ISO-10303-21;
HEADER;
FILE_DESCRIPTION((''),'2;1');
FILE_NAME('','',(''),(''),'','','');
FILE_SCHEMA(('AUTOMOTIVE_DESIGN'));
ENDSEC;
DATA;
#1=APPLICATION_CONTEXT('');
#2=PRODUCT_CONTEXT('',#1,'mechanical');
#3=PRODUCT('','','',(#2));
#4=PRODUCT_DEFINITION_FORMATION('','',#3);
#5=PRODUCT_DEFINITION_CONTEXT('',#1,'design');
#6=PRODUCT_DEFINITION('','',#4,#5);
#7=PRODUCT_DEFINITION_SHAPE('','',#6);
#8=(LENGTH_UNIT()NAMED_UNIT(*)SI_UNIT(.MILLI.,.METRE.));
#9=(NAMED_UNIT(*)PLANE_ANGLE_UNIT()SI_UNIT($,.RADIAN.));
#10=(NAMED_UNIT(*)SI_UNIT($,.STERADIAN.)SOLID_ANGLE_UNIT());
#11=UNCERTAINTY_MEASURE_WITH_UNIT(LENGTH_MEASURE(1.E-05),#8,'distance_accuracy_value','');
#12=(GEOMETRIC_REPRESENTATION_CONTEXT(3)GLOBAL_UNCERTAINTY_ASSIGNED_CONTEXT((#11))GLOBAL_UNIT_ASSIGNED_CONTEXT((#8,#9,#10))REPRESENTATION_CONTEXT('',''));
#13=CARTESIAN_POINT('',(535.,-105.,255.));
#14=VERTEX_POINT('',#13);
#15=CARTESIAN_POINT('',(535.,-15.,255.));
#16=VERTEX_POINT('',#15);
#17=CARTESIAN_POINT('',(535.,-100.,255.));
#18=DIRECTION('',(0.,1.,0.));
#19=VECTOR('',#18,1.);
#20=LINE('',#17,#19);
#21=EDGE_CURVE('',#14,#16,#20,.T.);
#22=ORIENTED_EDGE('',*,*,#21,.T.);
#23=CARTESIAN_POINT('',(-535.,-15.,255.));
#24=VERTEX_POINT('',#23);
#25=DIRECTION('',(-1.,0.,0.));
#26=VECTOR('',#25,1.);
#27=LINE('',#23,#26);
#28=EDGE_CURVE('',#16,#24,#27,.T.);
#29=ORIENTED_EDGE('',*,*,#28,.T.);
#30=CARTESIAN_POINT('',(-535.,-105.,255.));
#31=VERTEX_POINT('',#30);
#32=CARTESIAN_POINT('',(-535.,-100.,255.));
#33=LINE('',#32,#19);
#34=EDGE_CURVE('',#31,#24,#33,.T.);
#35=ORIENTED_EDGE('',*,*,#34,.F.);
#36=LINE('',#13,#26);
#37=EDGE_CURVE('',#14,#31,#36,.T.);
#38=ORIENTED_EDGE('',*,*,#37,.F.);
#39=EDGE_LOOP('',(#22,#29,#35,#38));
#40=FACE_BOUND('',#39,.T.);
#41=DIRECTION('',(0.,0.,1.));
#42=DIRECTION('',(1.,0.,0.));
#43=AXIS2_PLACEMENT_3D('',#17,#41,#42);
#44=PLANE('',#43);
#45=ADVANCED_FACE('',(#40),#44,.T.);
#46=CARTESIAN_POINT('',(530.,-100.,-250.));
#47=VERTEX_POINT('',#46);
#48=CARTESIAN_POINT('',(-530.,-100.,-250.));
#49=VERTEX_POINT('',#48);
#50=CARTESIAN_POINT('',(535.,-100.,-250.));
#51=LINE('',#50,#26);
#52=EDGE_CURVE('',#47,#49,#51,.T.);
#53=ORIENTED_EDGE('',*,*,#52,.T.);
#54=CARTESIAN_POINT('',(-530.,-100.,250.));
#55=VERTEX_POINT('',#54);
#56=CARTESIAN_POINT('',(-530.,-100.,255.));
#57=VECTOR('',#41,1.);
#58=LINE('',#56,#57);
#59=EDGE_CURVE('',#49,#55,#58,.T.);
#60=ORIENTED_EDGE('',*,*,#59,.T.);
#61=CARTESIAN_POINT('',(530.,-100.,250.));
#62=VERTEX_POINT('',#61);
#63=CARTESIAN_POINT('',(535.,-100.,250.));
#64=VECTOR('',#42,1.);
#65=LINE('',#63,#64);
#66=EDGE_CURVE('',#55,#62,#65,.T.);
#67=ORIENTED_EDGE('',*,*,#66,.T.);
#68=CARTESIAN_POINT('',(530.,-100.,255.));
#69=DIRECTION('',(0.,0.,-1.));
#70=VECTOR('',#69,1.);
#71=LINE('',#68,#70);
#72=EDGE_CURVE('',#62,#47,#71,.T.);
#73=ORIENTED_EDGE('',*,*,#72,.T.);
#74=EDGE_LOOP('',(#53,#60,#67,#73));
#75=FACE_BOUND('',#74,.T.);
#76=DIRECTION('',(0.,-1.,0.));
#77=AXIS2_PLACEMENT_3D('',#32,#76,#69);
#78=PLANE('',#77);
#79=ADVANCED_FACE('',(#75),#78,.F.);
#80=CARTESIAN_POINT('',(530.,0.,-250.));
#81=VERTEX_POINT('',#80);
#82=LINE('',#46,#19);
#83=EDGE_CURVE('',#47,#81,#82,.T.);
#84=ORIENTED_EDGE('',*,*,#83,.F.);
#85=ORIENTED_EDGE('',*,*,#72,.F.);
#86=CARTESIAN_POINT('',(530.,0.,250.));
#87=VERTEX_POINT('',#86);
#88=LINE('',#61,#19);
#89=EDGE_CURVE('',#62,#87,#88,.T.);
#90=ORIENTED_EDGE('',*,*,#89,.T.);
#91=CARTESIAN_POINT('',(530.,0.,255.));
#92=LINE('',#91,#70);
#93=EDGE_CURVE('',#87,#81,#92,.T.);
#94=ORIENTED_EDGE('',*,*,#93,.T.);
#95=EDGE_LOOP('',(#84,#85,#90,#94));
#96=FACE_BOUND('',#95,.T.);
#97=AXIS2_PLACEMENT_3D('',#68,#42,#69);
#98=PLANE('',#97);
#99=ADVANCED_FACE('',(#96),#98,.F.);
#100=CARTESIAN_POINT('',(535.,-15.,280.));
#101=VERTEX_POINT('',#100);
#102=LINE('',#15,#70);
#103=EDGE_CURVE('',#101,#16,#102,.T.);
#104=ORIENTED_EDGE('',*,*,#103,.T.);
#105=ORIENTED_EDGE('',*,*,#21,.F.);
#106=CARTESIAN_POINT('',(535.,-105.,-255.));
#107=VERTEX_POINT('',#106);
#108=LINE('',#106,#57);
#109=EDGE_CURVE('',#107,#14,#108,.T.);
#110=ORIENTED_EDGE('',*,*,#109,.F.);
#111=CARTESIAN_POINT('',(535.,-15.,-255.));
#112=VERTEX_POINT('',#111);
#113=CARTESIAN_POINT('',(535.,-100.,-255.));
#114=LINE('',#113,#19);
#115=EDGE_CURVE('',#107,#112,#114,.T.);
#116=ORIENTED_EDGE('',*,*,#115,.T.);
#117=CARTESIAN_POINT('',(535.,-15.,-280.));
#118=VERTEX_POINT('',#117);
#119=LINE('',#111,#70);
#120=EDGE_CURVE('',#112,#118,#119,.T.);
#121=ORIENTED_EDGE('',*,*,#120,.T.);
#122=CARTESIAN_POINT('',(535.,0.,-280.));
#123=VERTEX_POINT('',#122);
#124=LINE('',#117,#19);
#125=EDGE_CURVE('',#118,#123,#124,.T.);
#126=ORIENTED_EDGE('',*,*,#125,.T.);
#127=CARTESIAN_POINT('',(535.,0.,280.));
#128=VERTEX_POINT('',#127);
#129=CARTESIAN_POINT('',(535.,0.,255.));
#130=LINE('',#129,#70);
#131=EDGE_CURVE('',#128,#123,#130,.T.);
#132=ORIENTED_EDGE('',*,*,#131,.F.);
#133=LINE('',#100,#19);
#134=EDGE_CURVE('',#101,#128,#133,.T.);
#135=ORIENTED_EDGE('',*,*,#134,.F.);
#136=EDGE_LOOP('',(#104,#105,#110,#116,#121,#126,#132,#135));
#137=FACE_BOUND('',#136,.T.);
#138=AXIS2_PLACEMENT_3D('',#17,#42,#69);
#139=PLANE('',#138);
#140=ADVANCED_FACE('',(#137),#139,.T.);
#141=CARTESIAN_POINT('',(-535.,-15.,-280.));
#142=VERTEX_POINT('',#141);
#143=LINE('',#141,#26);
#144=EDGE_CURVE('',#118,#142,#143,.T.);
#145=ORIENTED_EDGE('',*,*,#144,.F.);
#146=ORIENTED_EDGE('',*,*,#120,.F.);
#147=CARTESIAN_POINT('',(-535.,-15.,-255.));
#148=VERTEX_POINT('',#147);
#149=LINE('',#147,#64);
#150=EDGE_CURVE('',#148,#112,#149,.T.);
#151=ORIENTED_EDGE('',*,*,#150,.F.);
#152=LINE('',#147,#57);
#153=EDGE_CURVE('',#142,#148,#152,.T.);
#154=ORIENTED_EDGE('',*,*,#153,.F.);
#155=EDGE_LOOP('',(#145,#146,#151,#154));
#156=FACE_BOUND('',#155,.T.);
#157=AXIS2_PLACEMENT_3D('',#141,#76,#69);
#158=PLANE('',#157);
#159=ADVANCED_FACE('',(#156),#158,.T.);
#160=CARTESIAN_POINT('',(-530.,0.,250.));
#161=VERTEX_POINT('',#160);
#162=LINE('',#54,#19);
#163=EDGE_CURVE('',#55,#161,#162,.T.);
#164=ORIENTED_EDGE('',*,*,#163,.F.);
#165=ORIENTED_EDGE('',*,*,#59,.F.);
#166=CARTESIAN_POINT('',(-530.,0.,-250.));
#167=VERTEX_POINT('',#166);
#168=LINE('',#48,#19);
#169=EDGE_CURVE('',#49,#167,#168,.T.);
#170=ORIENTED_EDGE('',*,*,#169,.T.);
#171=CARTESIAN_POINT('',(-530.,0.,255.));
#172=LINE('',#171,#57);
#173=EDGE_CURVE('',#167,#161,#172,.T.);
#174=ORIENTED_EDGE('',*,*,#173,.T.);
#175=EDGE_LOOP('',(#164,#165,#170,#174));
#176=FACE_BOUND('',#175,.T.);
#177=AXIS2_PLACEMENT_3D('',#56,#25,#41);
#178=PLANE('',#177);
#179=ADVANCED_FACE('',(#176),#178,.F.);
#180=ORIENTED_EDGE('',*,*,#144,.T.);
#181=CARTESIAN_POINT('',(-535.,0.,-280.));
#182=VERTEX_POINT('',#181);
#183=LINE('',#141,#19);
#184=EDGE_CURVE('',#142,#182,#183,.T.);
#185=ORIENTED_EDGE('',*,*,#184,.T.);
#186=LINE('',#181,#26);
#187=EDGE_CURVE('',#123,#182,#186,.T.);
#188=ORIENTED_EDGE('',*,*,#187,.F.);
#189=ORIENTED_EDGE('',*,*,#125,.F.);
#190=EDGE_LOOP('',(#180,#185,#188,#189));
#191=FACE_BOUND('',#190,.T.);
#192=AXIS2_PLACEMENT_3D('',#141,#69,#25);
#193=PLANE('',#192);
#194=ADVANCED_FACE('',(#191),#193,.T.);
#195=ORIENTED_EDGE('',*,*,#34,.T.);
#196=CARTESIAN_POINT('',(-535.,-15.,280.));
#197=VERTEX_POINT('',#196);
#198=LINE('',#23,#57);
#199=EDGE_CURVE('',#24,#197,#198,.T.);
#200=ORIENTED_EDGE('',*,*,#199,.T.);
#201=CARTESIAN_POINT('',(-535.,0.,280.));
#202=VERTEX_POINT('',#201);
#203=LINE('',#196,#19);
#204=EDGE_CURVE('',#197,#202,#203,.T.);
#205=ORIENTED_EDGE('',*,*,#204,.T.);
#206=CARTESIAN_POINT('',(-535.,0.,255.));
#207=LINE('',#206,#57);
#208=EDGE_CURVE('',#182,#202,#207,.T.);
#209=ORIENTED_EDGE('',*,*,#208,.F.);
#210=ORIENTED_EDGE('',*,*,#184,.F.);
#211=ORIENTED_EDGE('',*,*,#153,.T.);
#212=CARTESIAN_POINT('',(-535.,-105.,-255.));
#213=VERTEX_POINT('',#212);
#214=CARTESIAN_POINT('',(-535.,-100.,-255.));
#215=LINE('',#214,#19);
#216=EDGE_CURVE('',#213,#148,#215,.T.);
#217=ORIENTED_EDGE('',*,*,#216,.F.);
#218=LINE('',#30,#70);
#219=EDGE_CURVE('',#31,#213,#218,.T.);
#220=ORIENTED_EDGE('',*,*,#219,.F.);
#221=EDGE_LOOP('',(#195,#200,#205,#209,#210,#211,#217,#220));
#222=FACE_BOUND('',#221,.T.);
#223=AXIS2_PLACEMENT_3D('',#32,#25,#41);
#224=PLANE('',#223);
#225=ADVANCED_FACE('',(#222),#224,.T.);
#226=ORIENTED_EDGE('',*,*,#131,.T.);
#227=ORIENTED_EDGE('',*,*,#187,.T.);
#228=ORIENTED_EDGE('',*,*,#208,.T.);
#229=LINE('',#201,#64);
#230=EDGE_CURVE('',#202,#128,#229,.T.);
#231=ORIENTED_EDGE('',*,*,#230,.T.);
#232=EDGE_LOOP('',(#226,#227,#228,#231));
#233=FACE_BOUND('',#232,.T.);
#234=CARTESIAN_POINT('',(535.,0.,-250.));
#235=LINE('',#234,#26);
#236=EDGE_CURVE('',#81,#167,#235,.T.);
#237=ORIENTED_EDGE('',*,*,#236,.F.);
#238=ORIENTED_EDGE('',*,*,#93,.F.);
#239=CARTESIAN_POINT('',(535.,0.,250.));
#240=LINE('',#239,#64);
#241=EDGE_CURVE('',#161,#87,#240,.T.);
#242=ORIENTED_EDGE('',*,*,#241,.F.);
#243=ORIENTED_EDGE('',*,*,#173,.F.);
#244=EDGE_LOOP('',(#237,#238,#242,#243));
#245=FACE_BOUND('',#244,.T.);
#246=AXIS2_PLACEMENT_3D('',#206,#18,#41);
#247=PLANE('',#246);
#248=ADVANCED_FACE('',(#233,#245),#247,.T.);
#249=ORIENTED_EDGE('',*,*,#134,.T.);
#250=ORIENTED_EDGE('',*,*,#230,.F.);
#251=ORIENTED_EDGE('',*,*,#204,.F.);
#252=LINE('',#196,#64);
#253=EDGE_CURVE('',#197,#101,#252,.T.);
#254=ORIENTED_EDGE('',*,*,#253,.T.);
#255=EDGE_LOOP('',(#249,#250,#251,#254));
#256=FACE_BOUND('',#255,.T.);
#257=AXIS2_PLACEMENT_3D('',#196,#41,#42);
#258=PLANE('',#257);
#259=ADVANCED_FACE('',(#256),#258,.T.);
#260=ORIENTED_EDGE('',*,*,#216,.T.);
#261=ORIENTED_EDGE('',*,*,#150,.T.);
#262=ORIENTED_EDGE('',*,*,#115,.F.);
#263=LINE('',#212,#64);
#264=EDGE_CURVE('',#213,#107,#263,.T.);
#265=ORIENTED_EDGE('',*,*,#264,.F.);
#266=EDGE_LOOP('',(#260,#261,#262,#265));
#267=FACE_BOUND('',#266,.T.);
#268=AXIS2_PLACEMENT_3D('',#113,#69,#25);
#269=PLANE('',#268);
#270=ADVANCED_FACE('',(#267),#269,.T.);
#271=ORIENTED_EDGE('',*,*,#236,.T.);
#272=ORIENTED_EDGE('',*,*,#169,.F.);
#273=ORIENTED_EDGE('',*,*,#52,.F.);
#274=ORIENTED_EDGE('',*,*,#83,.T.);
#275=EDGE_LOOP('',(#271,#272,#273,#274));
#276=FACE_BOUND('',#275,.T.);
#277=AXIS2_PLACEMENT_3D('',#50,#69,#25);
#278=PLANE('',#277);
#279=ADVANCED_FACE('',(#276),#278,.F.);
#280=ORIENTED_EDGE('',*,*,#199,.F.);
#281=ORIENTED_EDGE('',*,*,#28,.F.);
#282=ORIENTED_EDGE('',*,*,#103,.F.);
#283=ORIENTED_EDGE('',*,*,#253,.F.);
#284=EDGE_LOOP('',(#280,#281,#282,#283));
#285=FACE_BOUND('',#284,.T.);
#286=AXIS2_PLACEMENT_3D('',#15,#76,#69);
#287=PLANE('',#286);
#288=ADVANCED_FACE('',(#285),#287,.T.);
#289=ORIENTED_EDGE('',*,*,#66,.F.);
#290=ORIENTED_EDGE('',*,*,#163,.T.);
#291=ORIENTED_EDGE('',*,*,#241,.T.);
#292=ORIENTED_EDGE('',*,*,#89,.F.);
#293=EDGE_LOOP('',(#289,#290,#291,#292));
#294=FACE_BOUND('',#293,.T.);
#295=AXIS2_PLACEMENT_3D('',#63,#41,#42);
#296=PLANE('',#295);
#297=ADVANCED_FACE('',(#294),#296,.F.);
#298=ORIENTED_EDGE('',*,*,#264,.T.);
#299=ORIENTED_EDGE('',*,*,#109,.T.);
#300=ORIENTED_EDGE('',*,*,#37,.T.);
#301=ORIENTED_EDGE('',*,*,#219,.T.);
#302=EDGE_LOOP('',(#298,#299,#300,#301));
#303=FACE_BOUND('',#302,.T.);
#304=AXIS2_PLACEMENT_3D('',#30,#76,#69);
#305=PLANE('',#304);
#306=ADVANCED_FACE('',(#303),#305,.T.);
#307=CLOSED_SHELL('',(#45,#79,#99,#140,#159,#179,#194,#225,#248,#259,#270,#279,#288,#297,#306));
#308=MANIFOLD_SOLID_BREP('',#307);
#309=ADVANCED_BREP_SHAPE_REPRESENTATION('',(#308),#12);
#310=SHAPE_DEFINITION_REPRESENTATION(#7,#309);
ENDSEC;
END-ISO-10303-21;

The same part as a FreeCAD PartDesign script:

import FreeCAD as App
import Part
import Sketcher

V = App.Vector
Q = App.Units.Quantity

doc = App.newDocument("Part")
params = doc.addObject("Spreadsheet::Sheet", "Params")
for row, (alias, value) in enumerate([
    ("sketch1_width", "1070 mm"),
    ("sketch1_width2", "1060 mm"),
    ("sketch1_height", "510 mm"),
    ("sketch1_height2", "500 mm"),
    ("pad1_length", "100 mm"),
    ("sketch2_width", "1070 mm"),
    ("sketch2_height", "510 mm"),
    ("pad2_length", "5 mm"),
    ("sketch3_width", "1070 mm"),
    ("sketch3_height", "25 mm"),
    ("pad3_length", "15 mm"),
], start=1):
    params.set(f"A{row}", alias)
    params.set(f"B{row}", "=" + value)
    params.setAlias(f"B{row}", alias)

body = doc.addObject("PartDesign::Body", "Body")

sketch1 = body.newObject("Sketcher::SketchObject", "Sketch")
sketch1.AttachmentSupport = (doc.getObject("XZ_Plane"), [""])
sketch1.MapMode = "FlatFace"
sketch1.addGeometry(Part.LineSegment(V(-535, -255, 0), V(-535, 255, 0)), False)
sketch1.addGeometry(Part.LineSegment(V(-535, 255, 0), V(535, 255, 0)), False)
sketch1.addGeometry(Part.LineSegment(V(535, 255, 0), V(535, -255, 0)), False)
sketch1.addGeometry(Part.LineSegment(V(535, -255, 0), V(-535, -255, 0)), False)
sketch1.addGeometry(Part.LineSegment(V(530, 250, 0), V(-530, 250, 0)), False)
sketch1.addGeometry(Part.LineSegment(V(-530, 250, 0), V(-530, -250, 0)), False)
sketch1.addGeometry(Part.LineSegment(V(-530, -250, 0), V(530, -250, 0)), False)
sketch1.addGeometry(Part.LineSegment(V(530, -250, 0), V(530, 250, 0)), False)
sketch1.addConstraint(Sketcher.Constraint("Coincident", 0, 2, 1, 1))
sketch1.addConstraint(Sketcher.Constraint("Coincident", 1, 2, 2, 1))
sketch1.addConstraint(Sketcher.Constraint("Coincident", 2, 2, 3, 1))
sketch1.addConstraint(Sketcher.Constraint("Coincident", 3, 2, 0, 1))
sketch1.addConstraint(Sketcher.Constraint("Coincident", 4, 2, 5, 1))
sketch1.addConstraint(Sketcher.Constraint("Coincident", 5, 2, 6, 1))
sketch1.addConstraint(Sketcher.Constraint("Coincident", 6, 2, 7, 1))
sketch1.addConstraint(Sketcher.Constraint("Coincident", 7, 2, 4, 1))
sketch1.addConstraint(Sketcher.Constraint("Vertical", 0))
sketch1.addConstraint(Sketcher.Constraint("Horizontal", 1))
sketch1.addConstraint(Sketcher.Constraint("Vertical", 2))
sketch1.addConstraint(Sketcher.Constraint("Horizontal", 3))
sketch1.addConstraint(Sketcher.Constraint("Horizontal", 4))
sketch1.addConstraint(Sketcher.Constraint("Vertical", 5))
sketch1.addConstraint(Sketcher.Constraint("Horizontal", 6))
sketch1.addConstraint(Sketcher.Constraint("Vertical", 7))
sketch1.addConstraint(Sketcher.Constraint("Symmetric", 0, 2, 2, 2, -1, 1))
sketch1.addConstraint(Sketcher.Constraint("Symmetric", 4, 2, 6, 2, -1, 1))
sketch1.addConstraint(Sketcher.Constraint("DistanceX", 1, 1, 1, 2, Q("1070 mm")))
sketch1.addConstraint(Sketcher.Constraint("DistanceX", 4, 2, 4, 1, Q("1060 mm")))
sketch1.addConstraint(Sketcher.Constraint("DistanceY", 0, 1, 0, 2, Q("510 mm")))
sketch1.addConstraint(Sketcher.Constraint("DistanceY", 5, 2, 5, 1, Q("500 mm")))
sketch1.setExpression("Constraints[18]", "Params.sketch1_width")
sketch1.setExpression("Constraints[19]", "Params.sketch1_width2")
sketch1.setExpression("Constraints[20]", "Params.sketch1_height")
sketch1.setExpression("Constraints[21]", "Params.sketch1_height2")
pad1 = body.newObject("PartDesign::Pad", "Pad")
pad1.Profile = sketch1
pad1.setExpression("Length", "Params.pad1_length")

sketch2 = body.newObject("Sketcher::SketchObject", "Sketch001")
sketch2.AttachmentSupport = (doc.getObject("XZ_Plane"), [""])
sketch2.MapMode = "FlatFace"
sketch2.AttachmentOffset = App.Placement(V(0, 0, 100), App.Rotation())
sketch2.addGeometry(Part.LineSegment(V(-535, 255, 0), V(-535, -255, 0)), False)
sketch2.addGeometry(Part.LineSegment(V(-535, -255, 0), V(535, -255, 0)), False)
sketch2.addGeometry(Part.LineSegment(V(535, -255, 0), V(535, 255, 0)), False)
sketch2.addGeometry(Part.LineSegment(V(535, 255, 0), V(-535, 255, 0)), False)
sketch2.addConstraint(Sketcher.Constraint("Coincident", 0, 2, 1, 1))
sketch2.addConstraint(Sketcher.Constraint("Coincident", 1, 2, 2, 1))
sketch2.addConstraint(Sketcher.Constraint("Coincident", 2, 2, 3, 1))
sketch2.addConstraint(Sketcher.Constraint("Coincident", 3, 2, 0, 1))
sketch2.addConstraint(Sketcher.Constraint("Vertical", 0))
sketch2.addConstraint(Sketcher.Constraint("Horizontal", 1))
sketch2.addConstraint(Sketcher.Constraint("Vertical", 2))
sketch2.addConstraint(Sketcher.Constraint("Horizontal", 3))
sketch2.addConstraint(Sketcher.Constraint("Symmetric", 0, 2, 2, 2, -1, 1))
sketch2.addConstraint(Sketcher.Constraint("DistanceX", 1, 1, 1, 2, Q("1070 mm")))
sketch2.addConstraint(Sketcher.Constraint("DistanceY", 0, 2, 0, 1, Q("510 mm")))
sketch2.setExpression("Constraints[9]", "Params.sketch2_width")
sketch2.setExpression("Constraints[10]", "Params.sketch2_height")
pad2 = body.newObject("PartDesign::Pad", "Pad001")
pad2.Profile = sketch2
pad2.setExpression("Length", "Params.pad2_length")

sketch3 = body.newObject("Sketcher::SketchObject", "Sketch002")
sketch3.AttachmentSupport = (doc.getObject("XZ_Plane"), [""])
sketch3.MapMode = "FlatFace"
sketch3.addGeometry(Part.LineSegment(V(-535, -280, 0), V(-535, -255, 0)), False)
sketch3.addGeometry(Part.LineSegment(V(-535, -255, 0), V(535, -255, 0)), False)
sketch3.addGeometry(Part.LineSegment(V(535, -255, 0), V(535, -280, 0)), False)
sketch3.addGeometry(Part.LineSegment(V(535, -280, 0), V(-535, -280, 0)), False)
sketch3.addGeometry(Part.LineSegment(V(-535, 255, 0), V(-535, 280, 0)), False)
sketch3.addGeometry(Part.LineSegment(V(-535, 280, 0), V(535, 280, 0)), False)
sketch3.addGeometry(Part.LineSegment(V(535, 280, 0), V(535, 255, 0)), False)
sketch3.addGeometry(Part.LineSegment(V(535, 255, 0), V(-535, 255, 0)), False)
sketch3.addConstraint(Sketcher.Constraint("Coincident", 0, 2, 1, 1))
sketch3.addConstraint(Sketcher.Constraint("Coincident", 1, 2, 2, 1))
sketch3.addConstraint(Sketcher.Constraint("Coincident", 2, 2, 3, 1))
sketch3.addConstraint(Sketcher.Constraint("Coincident", 3, 2, 0, 1))
sketch3.addConstraint(Sketcher.Constraint("Coincident", 4, 2, 5, 1))
sketch3.addConstraint(Sketcher.Constraint("Coincident", 5, 2, 6, 1))
sketch3.addConstraint(Sketcher.Constraint("Coincident", 6, 2, 7, 1))
sketch3.addConstraint(Sketcher.Constraint("Coincident", 7, 2, 4, 1))
sketch3.addConstraint(Sketcher.Constraint("Vertical", 0))
sketch3.addConstraint(Sketcher.Constraint("Horizontal", 1))
sketch3.addConstraint(Sketcher.Constraint("Vertical", 2))
sketch3.addConstraint(Sketcher.Constraint("Horizontal", 3))
sketch3.addConstraint(Sketcher.Constraint("Vertical", 4))
sketch3.addConstraint(Sketcher.Constraint("Horizontal", 5))
sketch3.addConstraint(Sketcher.Constraint("Vertical", 6))
sketch3.addConstraint(Sketcher.Constraint("Horizontal", 7))
sketch3.addConstraint(Sketcher.Constraint("Symmetric", 2, 2, 4, 2, -1, 1))
sketch3.addConstraint(Sketcher.Constraint("Symmetric", 0, 2, 6, 2, -1, 1))
sketch3.addConstraint(Sketcher.Constraint("Vertical", 3, 2, 4, 2))
sketch3.addConstraint(Sketcher.Constraint("DistanceX", 1, 1, 1, 2, Q("1070 mm")))
sketch3.addConstraint(Sketcher.Constraint("DistanceY", 0, 1, 0, 2, Q("25 mm")))
sketch3.addConstraint(Sketcher.Constraint("DistanceY", 0, 2, -1, 1, Q("255 mm")))
sketch3.setExpression("Constraints[19]", "Params.sketch3_width")
sketch3.setExpression("Constraints[20]", "Params.sketch3_height")
pad3 = body.newObject("PartDesign::Pad", "Pad002")
pad3.Profile = sketch3
pad3.setExpression("Length", "Params.pad3_length")

doc.recompute()
